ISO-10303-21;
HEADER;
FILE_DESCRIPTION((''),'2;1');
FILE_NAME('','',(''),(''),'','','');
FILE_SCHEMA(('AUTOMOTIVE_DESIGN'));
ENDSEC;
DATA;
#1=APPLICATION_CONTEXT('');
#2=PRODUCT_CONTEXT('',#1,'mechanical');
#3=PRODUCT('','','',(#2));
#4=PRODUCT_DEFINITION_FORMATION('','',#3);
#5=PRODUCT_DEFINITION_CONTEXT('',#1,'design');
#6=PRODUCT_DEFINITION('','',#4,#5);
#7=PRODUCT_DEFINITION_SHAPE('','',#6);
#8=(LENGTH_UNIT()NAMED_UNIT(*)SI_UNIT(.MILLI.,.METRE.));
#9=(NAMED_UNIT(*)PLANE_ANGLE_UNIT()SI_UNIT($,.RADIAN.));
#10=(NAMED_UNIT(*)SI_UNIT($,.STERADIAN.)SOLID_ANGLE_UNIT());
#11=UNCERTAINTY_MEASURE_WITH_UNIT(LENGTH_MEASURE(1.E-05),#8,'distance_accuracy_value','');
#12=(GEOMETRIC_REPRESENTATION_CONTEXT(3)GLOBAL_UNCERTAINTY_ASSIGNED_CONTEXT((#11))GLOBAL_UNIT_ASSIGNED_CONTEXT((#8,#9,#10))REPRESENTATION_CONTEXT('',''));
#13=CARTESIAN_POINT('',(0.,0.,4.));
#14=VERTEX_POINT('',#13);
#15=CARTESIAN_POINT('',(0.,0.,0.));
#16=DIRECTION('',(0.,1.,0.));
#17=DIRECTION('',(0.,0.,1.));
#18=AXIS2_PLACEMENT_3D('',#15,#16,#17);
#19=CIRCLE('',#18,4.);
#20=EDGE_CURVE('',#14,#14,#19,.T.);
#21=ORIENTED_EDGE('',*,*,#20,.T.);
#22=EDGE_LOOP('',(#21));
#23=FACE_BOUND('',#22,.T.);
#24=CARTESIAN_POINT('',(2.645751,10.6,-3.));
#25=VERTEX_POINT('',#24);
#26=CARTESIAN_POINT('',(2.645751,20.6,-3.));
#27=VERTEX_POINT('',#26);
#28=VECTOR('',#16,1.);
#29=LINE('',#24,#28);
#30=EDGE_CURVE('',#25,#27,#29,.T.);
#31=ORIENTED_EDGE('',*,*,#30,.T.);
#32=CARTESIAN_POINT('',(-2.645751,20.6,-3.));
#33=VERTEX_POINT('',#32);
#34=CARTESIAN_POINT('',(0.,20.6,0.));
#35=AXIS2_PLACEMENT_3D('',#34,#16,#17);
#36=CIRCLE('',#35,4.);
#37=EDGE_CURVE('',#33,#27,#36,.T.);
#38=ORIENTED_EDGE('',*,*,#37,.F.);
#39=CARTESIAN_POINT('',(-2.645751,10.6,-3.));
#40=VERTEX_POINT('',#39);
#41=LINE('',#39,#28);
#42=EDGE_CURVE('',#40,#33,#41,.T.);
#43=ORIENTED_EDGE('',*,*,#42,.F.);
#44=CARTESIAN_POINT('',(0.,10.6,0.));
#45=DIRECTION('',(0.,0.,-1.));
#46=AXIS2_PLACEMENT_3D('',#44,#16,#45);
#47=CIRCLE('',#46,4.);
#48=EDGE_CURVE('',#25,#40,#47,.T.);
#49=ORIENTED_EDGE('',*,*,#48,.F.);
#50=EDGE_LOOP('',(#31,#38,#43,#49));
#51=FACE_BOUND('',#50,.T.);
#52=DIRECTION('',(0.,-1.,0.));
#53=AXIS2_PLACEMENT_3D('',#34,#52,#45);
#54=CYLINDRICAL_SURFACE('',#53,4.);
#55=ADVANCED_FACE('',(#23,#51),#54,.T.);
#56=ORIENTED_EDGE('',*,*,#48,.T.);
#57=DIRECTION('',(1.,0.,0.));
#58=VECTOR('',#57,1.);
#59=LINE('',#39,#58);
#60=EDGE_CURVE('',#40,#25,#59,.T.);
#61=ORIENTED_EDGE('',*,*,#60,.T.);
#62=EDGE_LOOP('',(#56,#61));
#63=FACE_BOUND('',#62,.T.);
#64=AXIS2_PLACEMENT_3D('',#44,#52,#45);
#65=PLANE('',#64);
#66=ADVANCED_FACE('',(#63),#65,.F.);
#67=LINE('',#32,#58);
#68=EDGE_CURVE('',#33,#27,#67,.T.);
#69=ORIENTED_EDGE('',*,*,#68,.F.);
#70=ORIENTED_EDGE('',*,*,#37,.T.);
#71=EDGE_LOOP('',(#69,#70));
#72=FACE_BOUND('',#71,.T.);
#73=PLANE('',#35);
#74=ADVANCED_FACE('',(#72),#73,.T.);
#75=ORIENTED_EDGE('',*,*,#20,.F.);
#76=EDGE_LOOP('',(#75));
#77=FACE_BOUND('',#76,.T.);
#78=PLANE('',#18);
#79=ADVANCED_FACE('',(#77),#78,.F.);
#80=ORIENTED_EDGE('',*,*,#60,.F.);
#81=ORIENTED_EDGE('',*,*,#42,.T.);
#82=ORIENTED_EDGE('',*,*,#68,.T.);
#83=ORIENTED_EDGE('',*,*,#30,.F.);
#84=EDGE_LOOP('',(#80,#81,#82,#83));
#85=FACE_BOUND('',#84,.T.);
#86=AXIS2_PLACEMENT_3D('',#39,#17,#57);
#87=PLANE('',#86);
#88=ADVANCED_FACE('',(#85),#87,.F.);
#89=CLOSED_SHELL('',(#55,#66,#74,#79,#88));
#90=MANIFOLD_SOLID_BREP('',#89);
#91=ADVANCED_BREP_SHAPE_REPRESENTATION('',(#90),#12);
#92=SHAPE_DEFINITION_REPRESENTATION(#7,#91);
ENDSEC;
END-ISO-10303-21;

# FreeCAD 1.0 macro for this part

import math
import FreeCAD as App
import Part
import Sketcher

V = App.Vector

doc = App.newDocument("Part")
params = doc.addObject("Spreadsheet::Sheet", "Params")
for row, (alias, value) in enumerate([
    ("sketch1_diameter", "8 mm"),
    ("pad1_length", "20.6 mm"),
    ("sketch2_radius", "4 mm"),
    ("pocket1_length", "10 mm"),
], start=1):
    params.set(f"A{row}", alias)
    params.set(f"B{row}", "=" + value)
    params.setAlias(f"B{row}", alias)

body = doc.addObject("PartDesign::Body", "Body")

sketch1 = doc.addObject("Sketcher::SketchObject", "Sketch")
body.addObject(sketch1)
sketch1.AttachmentSupport = (doc.XZ_Plane, [""])
sketch1.MapMode = "FlatFace"
sketch1.addGeometry(Part.Circle(V(0, 0, 0), V(0, 0, 1), 4), False)
sketch1.addConstraint(Sketcher.Constraint("Coincident", 0, 3, -1, 1))
sketch1.addConstraint(Sketcher.Constraint("Diameter", 0, 8.0))
sketch1.setExpression("Constraints[1]", "Params.sketch1_diameter")
pad1 = doc.addObject("PartDesign::Pad", "Pad")
body.addObject(pad1)
pad1.Profile = sketch1
pad1.setExpression("Length", "Params.pad1_length")
pad1.Reversed = True

sketch2 = doc.addObject("Sketcher::SketchObject", "Sketch001")
body.addObject(sketch2)
sketch2.AttachmentSupport = (doc.XZ_Plane, [""])
sketch2.MapMode = "FlatFace"
sketch2.AttachmentOffset = App.Placement(V(0, 0, -20.6), App.Rotation())
sketch2.addGeometry(Part.LineSegment(V(-2.6, -3, 0), V(2.6, -3, 0)), False)
sketch2.addGeometry(Part.ArcOfCircle(Part.Circle(V(0, 0, 0), V(0, 0, 1), 4), math.radians(-131), math.radians(-49)), False)
sketch2.addConstraint(Sketcher.Constraint("Coincident", 0, 1, 1, 1))
sketch2.addConstraint(Sketcher.Constraint("Coincident", 1, 2, 0, 2))
sketch2.addConstraint(Sketcher.Constraint("Horizontal", 0))
sketch2.addConstraint(Sketcher.Constraint("Coincident", 1, 3, -1, 1))
sketch2.addConstraint(Sketcher.Constraint("Radius", 1, 4.0))
sketch2.addConstraint(Sketcher.Constraint("DistanceY", 0, 1, -1, 1, 3.0))
sketch2.setExpression("Constraints[4]", "Params.sketch2_radius")
pocket1 = doc.addObject("PartDesign::Pocket", "Pocket")
body.addObject(pocket1)
pocket1.Profile = sketch2
pocket1.setExpression("Length", "Params.pocket1_length")
pocket1.Reversed = True

doc.recompute()
